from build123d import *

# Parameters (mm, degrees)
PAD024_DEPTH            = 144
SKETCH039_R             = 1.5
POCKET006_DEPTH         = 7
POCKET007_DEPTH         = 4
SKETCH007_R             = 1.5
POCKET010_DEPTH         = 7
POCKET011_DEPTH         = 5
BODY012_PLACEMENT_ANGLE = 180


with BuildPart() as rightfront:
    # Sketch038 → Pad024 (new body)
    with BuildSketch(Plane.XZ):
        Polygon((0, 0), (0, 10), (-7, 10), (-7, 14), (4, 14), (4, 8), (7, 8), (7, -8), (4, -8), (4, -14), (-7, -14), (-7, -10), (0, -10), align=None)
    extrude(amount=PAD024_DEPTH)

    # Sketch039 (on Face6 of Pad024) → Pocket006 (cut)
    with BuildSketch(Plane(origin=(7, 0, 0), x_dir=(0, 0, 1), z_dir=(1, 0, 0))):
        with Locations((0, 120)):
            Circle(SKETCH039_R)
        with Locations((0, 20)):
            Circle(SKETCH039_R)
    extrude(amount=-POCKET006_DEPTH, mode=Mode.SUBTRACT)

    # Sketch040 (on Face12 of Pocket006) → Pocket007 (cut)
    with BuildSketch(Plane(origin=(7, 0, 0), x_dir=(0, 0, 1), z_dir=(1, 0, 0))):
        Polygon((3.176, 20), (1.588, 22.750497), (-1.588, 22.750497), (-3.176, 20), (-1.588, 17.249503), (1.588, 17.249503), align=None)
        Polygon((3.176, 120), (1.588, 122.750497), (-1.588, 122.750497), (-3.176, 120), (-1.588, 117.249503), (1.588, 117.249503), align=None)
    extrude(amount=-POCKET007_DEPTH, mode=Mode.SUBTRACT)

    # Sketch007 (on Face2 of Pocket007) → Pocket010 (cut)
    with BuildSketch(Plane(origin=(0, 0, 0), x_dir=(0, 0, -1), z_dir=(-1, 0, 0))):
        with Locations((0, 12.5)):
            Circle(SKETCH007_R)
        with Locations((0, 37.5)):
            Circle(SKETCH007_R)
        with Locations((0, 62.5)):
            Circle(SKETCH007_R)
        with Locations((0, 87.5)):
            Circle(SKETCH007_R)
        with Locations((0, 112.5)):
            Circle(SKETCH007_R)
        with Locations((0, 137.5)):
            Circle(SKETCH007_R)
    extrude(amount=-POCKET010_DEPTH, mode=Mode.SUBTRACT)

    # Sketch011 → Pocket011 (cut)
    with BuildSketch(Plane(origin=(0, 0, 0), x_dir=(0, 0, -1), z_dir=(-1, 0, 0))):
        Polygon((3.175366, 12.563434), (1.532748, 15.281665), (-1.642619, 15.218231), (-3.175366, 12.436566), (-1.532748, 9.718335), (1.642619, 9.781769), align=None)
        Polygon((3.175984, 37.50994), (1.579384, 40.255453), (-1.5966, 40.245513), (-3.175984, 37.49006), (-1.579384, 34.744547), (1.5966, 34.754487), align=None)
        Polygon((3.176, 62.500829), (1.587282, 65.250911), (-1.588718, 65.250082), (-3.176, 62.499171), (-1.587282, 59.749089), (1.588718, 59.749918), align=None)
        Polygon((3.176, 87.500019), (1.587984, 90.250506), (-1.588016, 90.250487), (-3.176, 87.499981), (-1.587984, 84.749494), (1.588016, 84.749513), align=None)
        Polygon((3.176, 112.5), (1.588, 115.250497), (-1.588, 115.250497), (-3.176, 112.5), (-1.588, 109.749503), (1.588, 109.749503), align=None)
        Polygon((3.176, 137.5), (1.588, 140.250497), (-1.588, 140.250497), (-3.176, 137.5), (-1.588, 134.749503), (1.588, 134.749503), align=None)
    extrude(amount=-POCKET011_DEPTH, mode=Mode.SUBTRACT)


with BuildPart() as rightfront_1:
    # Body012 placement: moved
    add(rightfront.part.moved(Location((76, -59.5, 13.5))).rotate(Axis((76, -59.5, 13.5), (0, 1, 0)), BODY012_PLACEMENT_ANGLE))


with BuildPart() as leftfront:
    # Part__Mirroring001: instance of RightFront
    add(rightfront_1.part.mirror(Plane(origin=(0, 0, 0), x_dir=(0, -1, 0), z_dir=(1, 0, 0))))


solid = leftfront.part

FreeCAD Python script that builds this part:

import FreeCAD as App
import Part
import Sketcher

V = App.Vector
Q = App.Units.Quantity

doc = App.newDocument("Part")
body = doc.addObject("PartDesign::Body", "Body")

# Sketch on XZ plane
sketch1 = body.newObject("Sketcher::SketchObject", "Sketch")
sketch1.AttachmentSupport = (doc.getObject("XZ_Plane"), [""])
sketch1.MapMode = "FlatFace"
sketch1.addGeometry([
    Part.LineSegment(V(0, 10, 0), V(0, -10, 0)),  # 0
    Part.LineSegment(V(0, -10, 0), V(-7, -10, 0)),  # 1
    Part.LineSegment(V(-7, -10, 0), V(-7, -14, 0)),  # 2
    Part.LineSegment(V(-7, -14, 0), V(4, -14, 0)),  # 3
    Part.LineSegment(V(4, -14, 0), V(4, -8, 0)),  # 4
    Part.LineSegment(V(4, -8, 0), V(7, -8, 0)),  # 5
    Part.LineSegment(V(7, -8, 0), V(7, 8, 0)),  # 6
    Part.LineSegment(V(7, 8, 0), V(4, 8, 0)),  # 7
    Part.LineSegment(V(4, 8, 0), V(4, 14, 0)),  # 8
    Part.LineSegment(V(4, 14, 0), V(-7, 14, 0)),  # 9
    Part.LineSegment(V(-7, 14, 0), V(-7, 10, 0)),  # 10
    Part.LineSegment(V(-7, 10, 0), V(0, 10, 0)),  # 11
], False)
sketch1.addConstraint([
    Sketcher.Constraint("Coincident", 0, 2, 1, 1),
    Sketcher.Constraint("Coincident", 1, 2, 2, 1),
    Sketcher.Constraint("Coincident", 2, 2, 3, 1),
    Sketcher.Constraint("Coincident", 3, 2, 4, 1),
    Sketcher.Constraint("Coincident", 4, 2, 5, 1),
    Sketcher.Constraint("Coincident", 5, 2, 6, 1),
    Sketcher.Constraint("Coincident", 6, 2, 7, 1),
    Sketcher.Constraint("Coincident", 7, 2, 8, 1),
    Sketcher.Constraint("Coincident", 8, 2, 9, 1),
    Sketcher.Constraint("Coincident", 9, 2, 10, 1),
    Sketcher.Constraint("Coincident", 10, 2, 11, 1),
    Sketcher.Constraint("Coincident", 11, 2, 0, 1),
    Sketcher.Constraint("Vertical", 0),
    Sketcher.Constraint("Horizontal", 1),
    Sketcher.Constraint("Vertical", 2),
    Sketcher.Constraint("Horizontal", 3),
    Sketcher.Constraint("Vertical", 4),
    Sketcher.Constraint("Horizontal", 5),
    Sketcher.Constraint("Vertical", 6),
    Sketcher.Constraint("Horizontal", 7),
    Sketcher.Constraint("Vertical", 8),
    Sketcher.Constraint("Horizontal", 9),
    Sketcher.Constraint("Vertical", 10),
    Sketcher.Constraint("Horizontal", 11),
    Sketcher.Constraint("Symmetric", 0, 2, 11, 2, -1, 1),
    Sketcher.Constraint("Symmetric", 4, 2, 7, 2, -1),
    Sketcher.Constraint("Symmetric", 2, 2, 9, 2, -1),
    Sketcher.Constraint("DistanceX", 1, 2, 1, 1, Q("7 mm")),
    Sketcher.Constraint("DistanceX", 3, 1, 3, 2, Q("11 mm")),
    Sketcher.Constraint("DistanceX", 5, 1, 5, 2, Q("3 mm")),
    Sketcher.Constraint("DistanceY", 0, 2, 0, 1, Q("20 mm")),
    Sketcher.Constraint("DistanceY", 2, 2, 2, 1, Q("4 mm")),
    Sketcher.Constraint("DistanceY", 4, 1, 4, 2, Q("6 mm")),
])
pad1 = body.newObject("PartDesign::Pad", "Pad")
pad1.Profile = sketch1
pad1.Length = 144

# Sketch on YZ plane
sketch2 = body.newObject("Sketcher::SketchObject", "Sketch001")
sketch2.AttachmentSupport = (doc.getObject("YZ_Plane"), [""])
sketch2.MapMode = "FlatFace"
sketch2.AttachmentOffset = App.Placement(V(0, 0, 7), App.Rotation())
sketch2.addGeometry([
    Part.Circle(V(-120, 0, 0), V(0, 0, 1), 1.5),
    Part.Circle(V(-20, 0, 0), V(0, 0, 1), 1.5),
], False)
sketch2.addConstraint([
    Sketcher.Constraint("Equal", 0, 1),
    Sketcher.Constraint("PointOnObject", 0, 3, -1),
    Sketcher.Constraint("PointOnObject", 1, 3, -1),
    Sketcher.Constraint("Diameter", 0, Q("3 mm")),
    Sketcher.Constraint("DistanceX", 0, 3, -1, 1, Q("120 mm")),
    Sketcher.Constraint("DistanceX", 1, 3, -1, 1, Q("20 mm")),
])
pocket1 = body.newObject("PartDesign::Pocket", "Pocket")
pocket1.Profile = sketch2
pocket1.Length = 7

# Sketch on YZ plane
sketch3 = body.newObject("Sketcher::SketchObject", "Sketch002")
sketch3.AttachmentSupport = (doc.getObject("YZ_Plane"), [""])
sketch3.MapMode = "FlatFace"
sketch3.AttachmentOffset = App.Placement(V(0, 0, 7), App.Rotation())
sketch3.addGeometry([
    Part.LineSegment(V(-20, 3.176, 0), V(-22.750497, 1.588, 0)),  # 0
    Part.LineSegment(V(-22.750497, 1.588, 0), V(-22.750497, -1.588, 0)),  # 1
    Part.LineSegment(V(-22.750497, -1.588, 0), V(-20, -3.176, 0)),  # 2
    Part.LineSegment(V(-20, -3.176, 0), V(-17.249503, -1.588, 0)),  # 3
    Part.LineSegment(V(-17.249503, -1.588, 0), V(-17.249503, 1.588, 0)),  # 4
    Part.LineSegment(V(-17.249503, 1.588, 0), V(-20, 3.176, 0)),  # 5
    Part.LineSegment(V(-120, 3.176, 0), V(-122.750497, 1.588, 0)),  # 6
    Part.LineSegment(V(-122.750497, 1.588, 0), V(-122.750497, -1.588, 0)),  # 7
    Part.LineSegment(V(-122.750497, -1.588, 0), V(-120, -3.176, 0)),  # 8
    Part.LineSegment(V(-120, -3.176, 0), V(-117.249503, -1.588, 0)),  # 9
    Part.LineSegment(V(-117.249503, -1.588, 0), V(-117.249503, 1.588, 0)),  # 10
    Part.LineSegment(V(-117.249503, 1.588, 0), V(-120, 3.176, 0)),  # 11
], False)
sketch3.addConstraint([
    Sketcher.Constraint("Coincident", 0, 2, 1, 1),
    Sketcher.Constraint("Coincident", 1, 2, 2, 1),
    Sketcher.Constraint("Coincident", 2, 2, 3, 1),
    Sketcher.Constraint("Coincident", 3, 2, 4, 1),
    Sketcher.Constraint("Coincident", 4, 2, 5, 1),
    Sketcher.Constraint("Coincident", 5, 2, 0, 1),
    Sketcher.Constraint("Coincident", 6, 2, 7, 1),
    Sketcher.Constraint("Coincident", 7, 2, 8, 1),
    Sketcher.Constraint("Coincident", 8, 2, 9, 1),
    Sketcher.Constraint("Coincident", 9, 2, 10, 1),
    Sketcher.Constraint("Coincident", 10, 2, 11, 1),
    Sketcher.Constraint("Coincident", 11, 2, 6, 1),
    Sketcher.Constraint("Vertical", 1),
    Sketcher.Constraint("Vertical", 4),
    Sketcher.Constraint("Vertical", 7),
    Sketcher.Constraint("Vertical", 10),
    Sketcher.Constraint("Symmetric", 2, 2, 5, 2, -1),
    Sketcher.Constraint("Symmetric", 8, 2, 11, 2, -1),
    Sketcher.Constraint("Parallel", 0, 3),
    Sketcher.Constraint("Parallel", 2, 5),
    Sketcher.Constraint("Parallel", 3, 6),
    Sketcher.Constraint("Parallel", 5, 8),
    Sketcher.Constraint("Parallel", 6, 9),
    Sketcher.Constraint("Parallel", 8, 11),
    Sketcher.Constraint("Horizontal", 1, 2, 3, 2),
    Sketcher.Constraint("Horizontal", 0, 2, 4, 2),
    Sketcher.Constraint("Horizontal", 4, 2, 6, 2),
    Sketcher.Constraint("Horizontal", 2, 2, 8, 2),
    Sketcher.Constraint("Horizontal", 7, 2, 9, 2),
    Sketcher.Constraint("Angle", 0, Q("-150.000003 deg")),
    Sketcher.Constraint("DistanceX", 2, 2, -1, 1, Q("20 mm")),
    Sketcher.Constraint("DistanceX", 8, 2, -1, 1, Q("120 mm")),
    Sketcher.Constraint("DistanceY", 1, 2, 1, 1, Q("3.176 mm")),
    Sketcher.Constraint("Distance", 0, Q("3.176 mm")),
])
pocket2 = body.newObject("PartDesign::Pocket", "Pocket001")
pocket2.Profile = sketch3
pocket2.Length = 4

# Sketch on YZ plane
sketch4 = body.newObject("Sketcher::SketchObject", "Sketch003")
sketch4.AttachmentSupport = (doc.getObject("YZ_Plane"), [""])
sketch4.MapMode = "FlatFace"
sketch4.addGeometry([
    Part.Circle(V(-12.5, 0, 0), V(0, 0, 1), 1.5),  # 0
    Part.Circle(V(-37.5, 0, 0), V(0, 0, 1), 1.5),  # 1
    Part.Circle(V(-62.5, 0, 0), V(0, 0, 1), 1.5),  # 2
    Part.Circle(V(-87.5, 0, 0), V(0, 0, 1), 1.5),  # 3
    Part.Circle(V(-112.5, 0, 0), V(0, 0, 1), 1.5),  # 4
    Part.Circle(V(-137.5, 0, 0), V(0, 0, 1), 1.5),  # 5
], False)
sketch4.addConstraint([
    Sketcher.Constraint("Equal", 0, 1),
    Sketcher.Constraint("Equal", 1, 2),
    Sketcher.Constraint("Equal", 2, 3),
    Sketcher.Constraint("Equal", 3, 4),
    Sketcher.Constraint("Equal", 4, 5),
    Sketcher.Constraint("PointOnObject", 0, 3, -1),
    Sketcher.Constraint("PointOnObject", 1, 3, -1),
    Sketcher.Constraint("PointOnObject", 2, 3, -1),
    Sketcher.Constraint("PointOnObject", 3, 3, -1),
    Sketcher.Constraint("PointOnObject", 4, 3, -1),
    Sketcher.Constraint("PointOnObject", 5, 3, -1),
    Sketcher.Constraint("Diameter", 0, Q("3 mm")),
    Sketcher.Constraint("DistanceX", 1, 3, 0, 3, Q("25 mm")),
    Sketcher.Constraint("DistanceX", 2, 3, 1, 3, Q("25 mm")),
    Sketcher.Constraint("DistanceX", 3, 3, 2, 3, Q("25 mm")),
    Sketcher.Constraint("DistanceX", 4, 3, 3, 3, Q("25 mm")),
    Sketcher.Constraint("DistanceX", 5, 3, 4, 3, Q("25 mm")),
    Sketcher.Constraint("DistanceX", 0, 3, -1, 1, Q("12.5 mm")),
])
pocket3 = body.newObject("PartDesign::Pocket", "Pocket002")
pocket3.Profile = sketch4
pocket3.Length = 7
pocket3.Reversed = True

# Sketch on YZ plane
sketch5 = body.newObject("Sketcher::SketchObject", "Sketch004")
sketch5.AttachmentSupport = (doc.getObject("YZ_Plane"), [""])
sketch5.MapMode = "FlatFace"
sketch5.addGeometry([
    Part.LineSegment(V(-12.563434, -3.175366, 0), V(-15.281665, -1.532748, 0)),  # 0
    Part.LineSegment(V(-15.281665, -1.532748, 0), V(-15.218231, 1.642619, 0)),  # 1
    Part.LineSegment(V(-15.218231, 1.642619, 0), V(-12.436566, 3.175366, 0)),  # 2
    Part.LineSegment(V(-12.436566, 3.175366, 0), V(-9.718335, 1.532748, 0)),  # 3
    Part.LineSegment(V(-9.718335, 1.532748, 0), V(-9.781769, -1.642619, 0)),  # 4
    Part.LineSegment(V(-9.781769, -1.642619, 0), V(-12.563434, -3.175366, 0)),  # 5
    Part.LineSegment(V(-37.50994, -3.175984, 0), V(-40.255453, -1.579384, 0)),  # 6
    Part.LineSegment(V(-40.255453, -1.579384, 0), V(-40.245513, 1.5966, 0)),  # 7
    Part.LineSegment(V(-40.245513, 1.5966, 0), V(-37.49006, 3.175984, 0)),  # 8
    Part.LineSegment(V(-37.49006, 3.175984, 0), V(-34.744547, 1.579384, 0)),  # 9
    Part.LineSegment(V(-34.744547, 1.579384, 0), V(-34.754487, -1.5966, 0)),  # 10
    Part.LineSegment(V(-34.754487, -1.5966, 0), V(-37.50994, -3.175984, 0)),  # 11
    Part.LineSegment(V(-62.500829, -3.176, 0), V(-65.250911, -1.587282, 0)),  # 12
    Part.LineSegment(V(-65.250911, -1.587282, 0), V(-65.250082, 1.588718, 0)),  # 13
    Part.LineSegment(V(-65.250082, 1.588718, 0), V(-62.499171, 3.176, 0)),  # 14
    Part.LineSegment(V(-62.499171, 3.176, 0), V(-59.749089, 1.587282, 0)),  # 15
    Part.LineSegment(V(-59.749089, 1.587282, 0), V(-59.749918, -1.588718, 0)),  # 16
    Part.LineSegment(V(-59.749918, -1.588718, 0), V(-62.500829, -3.176, 0)),  # 17
    Part.LineSegment(V(-87.500019, -3.176, 0), V(-90.250506, -1.587984, 0)),  # 18
    Part.LineSegment(V(-90.250506, -1.587984, 0), V(-90.250487, 1.588016, 0)),  # 19
    Part.LineSegment(V(-90.250487, 1.588016, 0), V(-87.499981, 3.176, 0)),  # 20
    Part.LineSegment(V(-87.499981, 3.176, 0), V(-84.749494, 1.587984, 0)),  # 21
    Part.LineSegment(V(-84.749494, 1.587984, 0), V(-84.749513, -1.588016, 0)),  # 22
    Part.LineSegment(V(-84.749513, -1.588016, 0), V(-87.500019, -3.176, 0)),  # 23
    Part.LineSegment(V(-112.5, -3.176, 0), V(-115.250497, -1.588, 0)),  # 24
    Part.LineSegment(V(-115.250497, -1.588, 0), V(-115.250497, 1.588, 0)),  # 25
    Part.LineSegment(V(-115.250497, 1.588, 0), V(-112.5, 3.176, 0)),  # 26
    Part.LineSegment(V(-112.5, 3.176, 0), V(-109.749503, 1.588, 0)),  # 27
    Part.LineSegment(V(-109.749503, 1.588, 0), V(-109.749503, -1.588, 0)),  # 28
    Part.LineSegment(V(-109.749503, -1.588, 0), V(-112.5, -3.176, 0)),  # 29
    Part.LineSegment(V(-137.5, -3.176, 0), V(-140.250497, -1.588, 0)),  # 30
    Part.LineSegment(V(-140.250497, -1.588, 0), V(-140.250497, 1.588, 0)),  # 31
    Part.LineSegment(V(-140.250497, 1.588, 0), V(-137.5, 3.176, 0)),  # 32
    Part.LineSegment(V(-137.5, 3.176, 0), V(-134.749503, 1.588, 0)),  # 33
    Part.LineSegment(V(-134.749503, 1.588, 0), V(-134.749503, -1.588, 0)),  # 34
    Part.LineSegment(V(-134.749503, -1.588, 0), V(-137.5, -3.176, 0)),  # 35
], False)
sketch5.addConstraint([
    Sketcher.Constraint("Coincident", 0, 2, 1, 1),
    Sketcher.Constraint("Coincident", 1, 2, 2, 1),
    Sketcher.Constraint("Coincident", 2, 2, 3, 1),
    Sketcher.Constraint("Coincident", 3, 2, 4, 1),
    Sketcher.Constraint("Coincident", 4, 2, 5, 1),
    Sketcher.Constraint("Coincident", 5, 2, 0, 1),
    Sketcher.Constraint("Coincident", 6, 2, 7, 1),
    Sketcher.Constraint("Coincident", 7, 2, 8, 1),
    Sketcher.Constraint("Coincident", 8, 2, 9, 1),
    Sketcher.Constraint("Coincident", 9, 2, 10, 1),
    Sketcher.Constraint("Coincident", 10, 2, 11, 1),
    Sketcher.Constraint("Coincident", 11, 2, 6, 1),
    Sketcher.Constraint("Coincident", 12, 2, 13, 1),
    Sketcher.Constraint("Coincident", 13, 2, 14, 1),
    Sketcher.Constraint("Coincident", 14, 2, 15, 1),
    Sketcher.Constraint("Coincident", 15, 2, 16, 1),
    Sketcher.Constraint("Coincident", 16, 2, 17, 1),
    Sketcher.Constraint("Coincident", 17, 2, 12, 1),
    Sketcher.Constraint("Coincident", 18, 2, 19, 1),
    Sketcher.Constraint("Coincident", 19, 2, 20, 1),
    Sketcher.Constraint("Coincident", 20, 2, 21, 1),
    Sketcher.Constraint("Coincident", 21, 2, 22, 1),
    Sketcher.Constraint("Coincident", 22, 2, 23, 1),
    Sketcher.Constraint("Coincident", 23, 2, 18, 1),
    Sketcher.Constraint("Coincident", 24, 2, 25, 1),
    Sketcher.Constraint("Coincident", 25, 2, 26, 1),
    Sketcher.Constraint("Coincident", 26, 2, 27, 1),
    Sketcher.Constraint("Coincident", 27, 2, 28, 1),
    Sketcher.Constraint("Coincident", 28, 2, 29, 1),
    Sketcher.Constraint("Coincident", 29, 2, 24, 1),
    Sketcher.Constraint("Coincident", 30, 2, 31, 1),
    Sketcher.Constraint("Coincident", 31, 2, 32, 1),
    Sketcher.Constraint("Coincident", 32, 2, 33, 1),
    Sketcher.Constraint("Coincident", 33, 2, 34, 1),
    Sketcher.Constraint("Coincident", 34, 2, 35, 1),
    Sketcher.Constraint("Coincident", 35, 2, 30, 1),
    Sketcher.Constraint("Vertical", 25),
    Sketcher.Constraint("Vertical", 28),
    Sketcher.Constraint("Vertical", 31),
    Sketcher.Constraint("Vertical", 34),
    Sketcher.Constraint("Symmetric", 26, 2, 29, 2, -1),
    Sketcher.Constraint("Symmetric", 32, 2, 35, 2, -1),
    Sketcher.Constraint("Parallel", 0, 3),
    Sketcher.Constraint("Parallel", 1, 4),
    Sketcher.Constraint("Parallel", 2, 5),
    Sketcher.Constraint("Parallel", 6, 9),
    Sketcher.Constraint("Parallel", 7, 10),
    Sketcher.Constraint("Parallel", 8, 11),
    Sketcher.Constraint("Parallel", 12, 15),
    Sketcher.Constraint("Parallel", 13, 16),
    Sketcher.Constraint("Parallel", 14, 17),
    Sketcher.Constraint("Parallel", 18, 21),
    Sketcher.Constraint("Parallel", 19, 22),
    Sketcher.Constraint("Parallel", 20, 23),
    Sketcher.Constraint("Parallel", 24, 27),
    Sketcher.Constraint("Parallel", 26, 29),
    Sketcher.Constraint("Parallel", 27, 30),
    Sketcher.Constraint("Parallel", 29, 32),
    Sketcher.Constraint("Parallel", 30, 33),
    Sketcher.Constraint("Parallel", 32, 35),
    Sketcher.Constraint("Horizontal", 14, 2, 20, 2),
    Sketcher.Constraint("Horizontal", 17, 2, 23, 2),
    Sketcher.Constraint("Horizontal", 20, 2, 26, 2),
    Sketcher.Constraint("Horizontal", 25, 2, 27, 2),
    Sketcher.Constraint("Horizontal", 24, 2, 28, 2),
    Sketcher.Constraint("Horizontal", 23, 2, 29, 2),
    Sketcher.Constraint("Horizontal", 28, 2, 30, 2),
    Sketcher.Constraint("Horizontal", 26, 2, 32, 2),
    Sketcher.Constraint("Horizontal", 31, 2, 33, 2),
    Sketcher.Constraint("Equal", 0, 1),
    Sketcher.Constraint("Equal", 1, 2),
    Sketcher.Constraint("Equal", 2, 3),
    Sketcher.Constraint("Equal", 5, 6),
    Sketcher.Constraint("Equal", 6, 7),
    Sketcher.Constraint("Equal", 7, 8),
    Sketcher.Constraint("Equal", 8, 9),
    Sketcher.Constraint("Equal", 11, 12),
    Sketcher.Constraint("Equal", 12, 13),
    Sketcher.Constraint("Equal", 13, 14),
    Sketcher.Constraint("Equal", 14, 15),
    Sketcher.Constraint("Equal", 17, 18),
    Sketcher.Constraint("Equal", 18, 19),
    Sketcher.Constraint("Equal", 19, 20),
    Sketcher.Constraint("Equal", 20, 21),
    Sketcher.Constraint("Equal", 23, 24),
    Sketcher.Constraint("Angle", 24, Q("150.000003 deg")),
    Sketcher.Constraint("DistanceX", 30, 2, 24, 2, Q("25 mm")),
    Sketcher.Constraint("DistanceX", 26, 2, -1, 1, Q("112.5 mm")),
    Sketcher.Constraint("DistanceY", 25, 1, 25, 2, Q("3.176 mm")),
    Sketcher.Constraint("Distance", 0, Q("3.176 mm")),
    Sketcher.Constraint("DistanceY", -1, 1, 7, 2, Q("1.5966 mm")),
    Sketcher.Constraint("DistanceY", 10, 2, -1, 1, Q("1.5966 mm")),
    Sketcher.Constraint("DistanceX", 0, 2, 2, 2, Q("2.845099 mm")),
    Sketcher.Constraint("DistanceY", 9, 2, 8, 2, Q("1.5966 mm")),
    Sketcher.Constraint("DistanceY", 12, 2, 6, 2, Q("0.007898 mm")),
    Sketcher.Constraint("DistanceY", 18, 2, 12, 2, Q("0.000702 mm")),
    Sketcher.Constraint("DistanceX", 20, 2, 13, 2, Q("22.249899 mm")),
    Sketcher.Constraint("DistanceX", 22, 2, 12, 2, Q("19.498602 mm")),
    Sketcher.Constraint("DistanceX", 1, 2, -1, 1, Q("15.218231 mm")),
    Sketcher.Constraint("DistanceY", -1, 1, 1, 2, Q("1.642619 mm")),
    Sketcher.Constraint("DistanceX", 4, 2, -1, 1, Q("9.781769 mm")),
    Sketcher.Constraint("DistanceY", 4, 2, -1, 1, Q("1.642619 mm")),
    Sketcher.Constraint("DistanceX", 8, 2, -1, 1, Q("37.49006 mm")),
    Sketcher.Constraint("DistanceX", 11, 2, -1, 1, Q("37.50994 mm")),
    Sketcher.Constraint("DistanceX", 12, 2, -1, 1, Q("65.250911 mm")),
    Sketcher.Constraint("DistanceX", 14, 2, -1, 1, Q("62.499171 mm")),
])
pocket4 = body.newObject("PartDesign::Pocket", "Pocket003")
pocket4.Profile = sketch5
pocket4.Length = 5
pocket4.Reversed = True
body2 = doc.addObject("PartDesign::Body", "Body001")
doc.recompute()

body.Placement = App.Placement(V(76, -59.5, 13.5), App.Rotation(V(0, 1, 0), 180))
boolean = body2.newObject("PartDesign::Boolean", "Boolean")
boolean.Type = "Fuse"
boolean.addObjects([body])
body3 = doc.addObject("PartDesign::Body", "Body002")
doc.recompute()

mirroring = doc.addObject("Part::Mirroring", "Mirroring")
mirroring.Source = body2
mirroring.Base = V(0, 0, 0)
mirroring.Normal = V(1, 0, 0)
body3.BaseFeature = mirroring
doc.recompute()
body2.Visibility = False
mirroring.Visibility = False

doc.recompute()
